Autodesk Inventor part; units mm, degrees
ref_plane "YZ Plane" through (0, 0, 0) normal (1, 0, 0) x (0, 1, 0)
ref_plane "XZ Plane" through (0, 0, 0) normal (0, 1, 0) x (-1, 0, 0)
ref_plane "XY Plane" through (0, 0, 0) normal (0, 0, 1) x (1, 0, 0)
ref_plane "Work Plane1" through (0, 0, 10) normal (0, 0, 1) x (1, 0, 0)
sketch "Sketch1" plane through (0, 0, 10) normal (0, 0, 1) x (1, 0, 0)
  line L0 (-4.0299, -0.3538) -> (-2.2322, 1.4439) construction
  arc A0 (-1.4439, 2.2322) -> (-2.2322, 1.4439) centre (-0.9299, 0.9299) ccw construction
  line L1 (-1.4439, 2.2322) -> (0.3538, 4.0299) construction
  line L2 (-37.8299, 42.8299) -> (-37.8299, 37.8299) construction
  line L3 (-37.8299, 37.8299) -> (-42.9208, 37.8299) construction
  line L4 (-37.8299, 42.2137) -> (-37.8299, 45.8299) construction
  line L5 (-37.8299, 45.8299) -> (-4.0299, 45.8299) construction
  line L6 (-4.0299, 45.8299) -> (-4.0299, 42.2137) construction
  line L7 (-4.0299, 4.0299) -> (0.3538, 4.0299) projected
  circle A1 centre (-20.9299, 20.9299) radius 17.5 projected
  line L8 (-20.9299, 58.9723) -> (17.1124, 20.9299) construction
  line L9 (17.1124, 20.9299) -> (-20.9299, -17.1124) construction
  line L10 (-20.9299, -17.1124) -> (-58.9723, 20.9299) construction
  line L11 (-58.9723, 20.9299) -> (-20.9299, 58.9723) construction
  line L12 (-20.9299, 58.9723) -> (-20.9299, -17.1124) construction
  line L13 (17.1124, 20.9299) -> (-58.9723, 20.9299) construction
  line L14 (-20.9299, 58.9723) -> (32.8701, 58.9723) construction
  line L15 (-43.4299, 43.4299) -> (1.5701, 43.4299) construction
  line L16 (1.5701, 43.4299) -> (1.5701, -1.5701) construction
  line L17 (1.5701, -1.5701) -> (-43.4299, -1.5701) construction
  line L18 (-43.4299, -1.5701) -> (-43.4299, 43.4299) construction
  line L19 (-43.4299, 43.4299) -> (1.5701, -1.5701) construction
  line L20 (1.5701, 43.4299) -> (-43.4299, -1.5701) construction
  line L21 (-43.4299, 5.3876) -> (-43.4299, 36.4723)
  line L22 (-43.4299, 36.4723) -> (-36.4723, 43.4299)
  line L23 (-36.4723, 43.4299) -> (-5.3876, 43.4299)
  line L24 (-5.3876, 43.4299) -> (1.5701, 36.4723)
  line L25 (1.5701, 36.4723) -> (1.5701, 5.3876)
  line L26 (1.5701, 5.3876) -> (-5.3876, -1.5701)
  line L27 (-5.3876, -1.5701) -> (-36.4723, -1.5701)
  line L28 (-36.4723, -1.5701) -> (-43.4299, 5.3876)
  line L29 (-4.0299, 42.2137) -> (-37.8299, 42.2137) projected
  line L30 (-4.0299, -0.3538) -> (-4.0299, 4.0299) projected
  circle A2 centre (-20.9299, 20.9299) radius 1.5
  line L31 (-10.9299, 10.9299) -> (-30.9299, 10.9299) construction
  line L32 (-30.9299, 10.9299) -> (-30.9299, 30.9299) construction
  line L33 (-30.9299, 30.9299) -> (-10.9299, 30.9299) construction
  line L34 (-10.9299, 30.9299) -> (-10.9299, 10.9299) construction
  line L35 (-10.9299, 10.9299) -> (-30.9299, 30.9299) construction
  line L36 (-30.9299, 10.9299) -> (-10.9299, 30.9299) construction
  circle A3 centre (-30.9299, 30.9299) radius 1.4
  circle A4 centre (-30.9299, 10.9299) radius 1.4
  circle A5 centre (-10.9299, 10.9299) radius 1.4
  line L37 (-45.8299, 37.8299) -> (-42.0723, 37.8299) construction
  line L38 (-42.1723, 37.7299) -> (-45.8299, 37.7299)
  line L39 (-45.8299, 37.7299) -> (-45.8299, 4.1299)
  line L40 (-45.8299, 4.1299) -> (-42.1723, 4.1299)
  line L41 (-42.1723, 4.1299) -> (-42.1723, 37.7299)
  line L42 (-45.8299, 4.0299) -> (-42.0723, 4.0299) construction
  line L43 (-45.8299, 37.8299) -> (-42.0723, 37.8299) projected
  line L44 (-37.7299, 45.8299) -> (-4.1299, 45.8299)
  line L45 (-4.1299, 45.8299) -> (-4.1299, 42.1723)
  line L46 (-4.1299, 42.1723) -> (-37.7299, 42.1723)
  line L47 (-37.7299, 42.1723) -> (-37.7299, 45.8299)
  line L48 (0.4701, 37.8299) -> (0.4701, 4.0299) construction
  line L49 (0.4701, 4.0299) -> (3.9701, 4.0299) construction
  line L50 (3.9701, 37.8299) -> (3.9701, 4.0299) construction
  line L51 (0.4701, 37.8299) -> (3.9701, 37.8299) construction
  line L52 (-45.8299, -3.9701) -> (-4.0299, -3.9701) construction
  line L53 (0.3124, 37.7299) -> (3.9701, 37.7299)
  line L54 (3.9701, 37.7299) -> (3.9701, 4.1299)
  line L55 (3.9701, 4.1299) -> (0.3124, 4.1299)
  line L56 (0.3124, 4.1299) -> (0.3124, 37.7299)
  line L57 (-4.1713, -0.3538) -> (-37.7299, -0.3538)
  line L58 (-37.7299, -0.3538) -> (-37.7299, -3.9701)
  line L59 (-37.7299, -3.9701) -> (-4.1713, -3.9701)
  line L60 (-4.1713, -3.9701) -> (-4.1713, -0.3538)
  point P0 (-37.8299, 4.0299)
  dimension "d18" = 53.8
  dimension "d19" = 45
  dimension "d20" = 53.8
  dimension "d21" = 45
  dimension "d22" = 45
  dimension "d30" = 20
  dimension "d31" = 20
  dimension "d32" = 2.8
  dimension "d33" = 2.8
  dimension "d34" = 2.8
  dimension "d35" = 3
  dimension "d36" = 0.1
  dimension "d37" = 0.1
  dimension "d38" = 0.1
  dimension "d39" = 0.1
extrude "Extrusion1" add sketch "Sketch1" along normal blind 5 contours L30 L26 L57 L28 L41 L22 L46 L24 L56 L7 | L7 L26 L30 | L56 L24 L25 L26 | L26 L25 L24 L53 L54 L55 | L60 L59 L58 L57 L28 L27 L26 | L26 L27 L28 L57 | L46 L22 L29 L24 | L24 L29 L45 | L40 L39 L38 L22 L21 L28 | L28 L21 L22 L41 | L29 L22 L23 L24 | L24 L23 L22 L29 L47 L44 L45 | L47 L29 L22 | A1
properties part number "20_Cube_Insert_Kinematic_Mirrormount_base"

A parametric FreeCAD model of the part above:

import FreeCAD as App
import Part
import Sketcher
from FreeCAD import Vector


def add_polygon(sketch, points):
    """Adds a closed chain of lines whose ends are joined by coincident constraints."""
    first, n = sketch.GeometryCount, len(points)
    for a, b in zip(points, points[1:] + points[:1]):
        sketch.addGeometry(Part.LineSegment(App.Vector(*a, 0), App.Vector(*b, 0)), False)
    for i in range(n):
        sketch.addConstraint(Sketcher.Constraint("Coincident", first + i, 2, first + (i + 1) % n, 1))

doc = App.newDocument("Part")
params = doc.addObject("Spreadsheet::Sheet", "Params")
for row, (alias, value) in enumerate([
    ("sketch1_diameter", "3 mm"),
    ("sketch1_diameter2", "2.8 mm"),
    ("sketch1_width", "33.6 mm"),
    ("pad1_length", "5 mm"),
], start=1):
    params.set(f"A{row}", alias)
    params.set(f"B{row}", "=" + value)
    params.setAlias(f"B{row}", alias)

body = doc.addObject("PartDesign::Body", "Body")

# Sketch on XY plane
sketch1 = body.newObject("Sketcher::SketchObject", "Sketch")
sketch1.AttachmentSupport = (doc.getObject("XY_Plane"), [""])
sketch1.MapMode = "FlatFace"
sketch1.AttachmentOffset = App.Placement(Vector(0, 0, 10), App.Rotation())
add_polygon(sketch1, [(-4.171, -0.354), (0.312, 4.13), (3.97, 4.13), (3.97, 37.73), (0.312, 37.73), (-4.13, 42.172), (-4.13, 45.83), (-37.73, 45.83), (-37.73, 42.172), (-42.172, 37.73), (-45.83, 37.73), (-45.83, 4.13), (-42.172, 4.13), (-37.689, -0.354), (-37.73, -0.354), (-37.73, -3.97), (-4.171, -3.97)])  # lines 0-16
sketch1.addGeometry(Part.Circle(Vector(-30.93, 30.93, 0), Vector(0, 0, 1), 1.4), False)  # 17
sketch1.addGeometry(Part.Circle(Vector(-30.93, 10.93, 0), Vector(0, 0, 1), 1.4), False)  # 18
sketch1.addGeometry(Part.Circle(Vector(-10.93, 10.93, 0), Vector(0, 0, 1), 1.4), False)  # 19
sketch1.addGeometry(Part.Circle(Vector(-20.93, 20.93, 0), Vector(0, 0, 1), 1.5), False)  # 20
sketch1.addConstraint([
    Sketcher.Constraint("Horizontal", 1),
    Sketcher.Constraint("Vertical", 2),
    Sketcher.Constraint("Horizontal", 3),
    Sketcher.Constraint("Vertical", 5),
    Sketcher.Constraint("Horizontal", 6),
    Sketcher.Constraint("Vertical", 7),
    Sketcher.Constraint("Horizontal", 9),
    Sketcher.Constraint("Vertical", 10),
    Sketcher.Constraint("Horizontal", 11),
    Sketcher.Constraint("Horizontal", 13),
    Sketcher.Constraint("Vertical", 14),
    Sketcher.Constraint("Horizontal", 15),
    Sketcher.Constraint("Vertical", 16),
    Sketcher.Constraint("Equal", 17, 18),
    Sketcher.Constraint("Equal", 18, 19),
    Sketcher.Constraint("Perpendicular", 0, 4),
    Sketcher.Constraint("Perpendicular", 4, 8),
    Sketcher.Constraint("Perpendicular", 8, 12),
    Sketcher.Constraint("Horizontal", 18, 3, 19, 3),
    Sketcher.Constraint("Horizontal", 4, 2, 7, 2),
    Sketcher.Constraint("Horizontal", 3, 2, 8, 2),
    Sketcher.Constraint("Horizontal", 1, 2, 10, 2),
    Sketcher.Constraint("Horizontal", 13, 2, 16, 2),
    Sketcher.Constraint("Vertical", 17, 3, 18, 3),
    Sketcher.Constraint("Vertical", 0, 2, 3, 2),
    Sketcher.Constraint("Vertical", 8, 2, 11, 2),
    Sketcher.Constraint("Vertical", 7, 2, 13, 2),
    Sketcher.Constraint("Equal", 3, 9),
    Sketcher.Constraint("Equal", 6, 2),
    Sketcher.Constraint("Equal", 11, 5),
    Sketcher.Constraint("Equal", 4, 8),
    Sketcher.Constraint("Diameter", 20, 3.0),
    Sketcher.Constraint("Diameter", 17, 2.8),
    Sketcher.Constraint("DistanceY", 18, 3, 17, 3, 20.0),
    Sketcher.Constraint("DistanceX", 18, 3, 19, 3, 20.0),
    Sketcher.Constraint("DistanceX", 6, 2, 6, 1, 33.6),
    Sketcher.Constraint("DistanceX", 17, 3, 20, 3, 10.0),
    Sketcher.Constraint("DistanceY", 20, 3, 17, 3, 10.0),
    Sketcher.Constraint("DistanceY", 0, 2, 19, 3, 6.8),
    Sketcher.Constraint("DistanceX", 19, 3, 1, 2, 14.9),
    Sketcher.Constraint("DistanceX", 4, 2, 2, 2, 8.1),
    Sketcher.Constraint("DistanceY", 14, 2, 11, 2, 8.1),
    Sketcher.Constraint("DistanceX", 17, 3, -1, 1, 30.93),
    Sketcher.Constraint("DistanceY", -1, 1, 17, 3, 30.93),
    Sketcher.Constraint("Distance", 0, 6.341),
    Sketcher.Constraint("DistanceX", 1, 1, 1, 2, 3.6577),
])
sketch1.setExpression("Constraints[48]", "Params.sketch1_diameter")
sketch1.setExpression("Constraints[49]", "Params.sketch1_diameter2")
sketch1.setExpression("Constraints[52]", "Params.sketch1_width")
pad1 = body.newObject("PartDesign::Pad", "Pad")
pad1.Profile = sketch1
pad1.setExpression("Length", "Params.pad1_length")

doc.recompute()
